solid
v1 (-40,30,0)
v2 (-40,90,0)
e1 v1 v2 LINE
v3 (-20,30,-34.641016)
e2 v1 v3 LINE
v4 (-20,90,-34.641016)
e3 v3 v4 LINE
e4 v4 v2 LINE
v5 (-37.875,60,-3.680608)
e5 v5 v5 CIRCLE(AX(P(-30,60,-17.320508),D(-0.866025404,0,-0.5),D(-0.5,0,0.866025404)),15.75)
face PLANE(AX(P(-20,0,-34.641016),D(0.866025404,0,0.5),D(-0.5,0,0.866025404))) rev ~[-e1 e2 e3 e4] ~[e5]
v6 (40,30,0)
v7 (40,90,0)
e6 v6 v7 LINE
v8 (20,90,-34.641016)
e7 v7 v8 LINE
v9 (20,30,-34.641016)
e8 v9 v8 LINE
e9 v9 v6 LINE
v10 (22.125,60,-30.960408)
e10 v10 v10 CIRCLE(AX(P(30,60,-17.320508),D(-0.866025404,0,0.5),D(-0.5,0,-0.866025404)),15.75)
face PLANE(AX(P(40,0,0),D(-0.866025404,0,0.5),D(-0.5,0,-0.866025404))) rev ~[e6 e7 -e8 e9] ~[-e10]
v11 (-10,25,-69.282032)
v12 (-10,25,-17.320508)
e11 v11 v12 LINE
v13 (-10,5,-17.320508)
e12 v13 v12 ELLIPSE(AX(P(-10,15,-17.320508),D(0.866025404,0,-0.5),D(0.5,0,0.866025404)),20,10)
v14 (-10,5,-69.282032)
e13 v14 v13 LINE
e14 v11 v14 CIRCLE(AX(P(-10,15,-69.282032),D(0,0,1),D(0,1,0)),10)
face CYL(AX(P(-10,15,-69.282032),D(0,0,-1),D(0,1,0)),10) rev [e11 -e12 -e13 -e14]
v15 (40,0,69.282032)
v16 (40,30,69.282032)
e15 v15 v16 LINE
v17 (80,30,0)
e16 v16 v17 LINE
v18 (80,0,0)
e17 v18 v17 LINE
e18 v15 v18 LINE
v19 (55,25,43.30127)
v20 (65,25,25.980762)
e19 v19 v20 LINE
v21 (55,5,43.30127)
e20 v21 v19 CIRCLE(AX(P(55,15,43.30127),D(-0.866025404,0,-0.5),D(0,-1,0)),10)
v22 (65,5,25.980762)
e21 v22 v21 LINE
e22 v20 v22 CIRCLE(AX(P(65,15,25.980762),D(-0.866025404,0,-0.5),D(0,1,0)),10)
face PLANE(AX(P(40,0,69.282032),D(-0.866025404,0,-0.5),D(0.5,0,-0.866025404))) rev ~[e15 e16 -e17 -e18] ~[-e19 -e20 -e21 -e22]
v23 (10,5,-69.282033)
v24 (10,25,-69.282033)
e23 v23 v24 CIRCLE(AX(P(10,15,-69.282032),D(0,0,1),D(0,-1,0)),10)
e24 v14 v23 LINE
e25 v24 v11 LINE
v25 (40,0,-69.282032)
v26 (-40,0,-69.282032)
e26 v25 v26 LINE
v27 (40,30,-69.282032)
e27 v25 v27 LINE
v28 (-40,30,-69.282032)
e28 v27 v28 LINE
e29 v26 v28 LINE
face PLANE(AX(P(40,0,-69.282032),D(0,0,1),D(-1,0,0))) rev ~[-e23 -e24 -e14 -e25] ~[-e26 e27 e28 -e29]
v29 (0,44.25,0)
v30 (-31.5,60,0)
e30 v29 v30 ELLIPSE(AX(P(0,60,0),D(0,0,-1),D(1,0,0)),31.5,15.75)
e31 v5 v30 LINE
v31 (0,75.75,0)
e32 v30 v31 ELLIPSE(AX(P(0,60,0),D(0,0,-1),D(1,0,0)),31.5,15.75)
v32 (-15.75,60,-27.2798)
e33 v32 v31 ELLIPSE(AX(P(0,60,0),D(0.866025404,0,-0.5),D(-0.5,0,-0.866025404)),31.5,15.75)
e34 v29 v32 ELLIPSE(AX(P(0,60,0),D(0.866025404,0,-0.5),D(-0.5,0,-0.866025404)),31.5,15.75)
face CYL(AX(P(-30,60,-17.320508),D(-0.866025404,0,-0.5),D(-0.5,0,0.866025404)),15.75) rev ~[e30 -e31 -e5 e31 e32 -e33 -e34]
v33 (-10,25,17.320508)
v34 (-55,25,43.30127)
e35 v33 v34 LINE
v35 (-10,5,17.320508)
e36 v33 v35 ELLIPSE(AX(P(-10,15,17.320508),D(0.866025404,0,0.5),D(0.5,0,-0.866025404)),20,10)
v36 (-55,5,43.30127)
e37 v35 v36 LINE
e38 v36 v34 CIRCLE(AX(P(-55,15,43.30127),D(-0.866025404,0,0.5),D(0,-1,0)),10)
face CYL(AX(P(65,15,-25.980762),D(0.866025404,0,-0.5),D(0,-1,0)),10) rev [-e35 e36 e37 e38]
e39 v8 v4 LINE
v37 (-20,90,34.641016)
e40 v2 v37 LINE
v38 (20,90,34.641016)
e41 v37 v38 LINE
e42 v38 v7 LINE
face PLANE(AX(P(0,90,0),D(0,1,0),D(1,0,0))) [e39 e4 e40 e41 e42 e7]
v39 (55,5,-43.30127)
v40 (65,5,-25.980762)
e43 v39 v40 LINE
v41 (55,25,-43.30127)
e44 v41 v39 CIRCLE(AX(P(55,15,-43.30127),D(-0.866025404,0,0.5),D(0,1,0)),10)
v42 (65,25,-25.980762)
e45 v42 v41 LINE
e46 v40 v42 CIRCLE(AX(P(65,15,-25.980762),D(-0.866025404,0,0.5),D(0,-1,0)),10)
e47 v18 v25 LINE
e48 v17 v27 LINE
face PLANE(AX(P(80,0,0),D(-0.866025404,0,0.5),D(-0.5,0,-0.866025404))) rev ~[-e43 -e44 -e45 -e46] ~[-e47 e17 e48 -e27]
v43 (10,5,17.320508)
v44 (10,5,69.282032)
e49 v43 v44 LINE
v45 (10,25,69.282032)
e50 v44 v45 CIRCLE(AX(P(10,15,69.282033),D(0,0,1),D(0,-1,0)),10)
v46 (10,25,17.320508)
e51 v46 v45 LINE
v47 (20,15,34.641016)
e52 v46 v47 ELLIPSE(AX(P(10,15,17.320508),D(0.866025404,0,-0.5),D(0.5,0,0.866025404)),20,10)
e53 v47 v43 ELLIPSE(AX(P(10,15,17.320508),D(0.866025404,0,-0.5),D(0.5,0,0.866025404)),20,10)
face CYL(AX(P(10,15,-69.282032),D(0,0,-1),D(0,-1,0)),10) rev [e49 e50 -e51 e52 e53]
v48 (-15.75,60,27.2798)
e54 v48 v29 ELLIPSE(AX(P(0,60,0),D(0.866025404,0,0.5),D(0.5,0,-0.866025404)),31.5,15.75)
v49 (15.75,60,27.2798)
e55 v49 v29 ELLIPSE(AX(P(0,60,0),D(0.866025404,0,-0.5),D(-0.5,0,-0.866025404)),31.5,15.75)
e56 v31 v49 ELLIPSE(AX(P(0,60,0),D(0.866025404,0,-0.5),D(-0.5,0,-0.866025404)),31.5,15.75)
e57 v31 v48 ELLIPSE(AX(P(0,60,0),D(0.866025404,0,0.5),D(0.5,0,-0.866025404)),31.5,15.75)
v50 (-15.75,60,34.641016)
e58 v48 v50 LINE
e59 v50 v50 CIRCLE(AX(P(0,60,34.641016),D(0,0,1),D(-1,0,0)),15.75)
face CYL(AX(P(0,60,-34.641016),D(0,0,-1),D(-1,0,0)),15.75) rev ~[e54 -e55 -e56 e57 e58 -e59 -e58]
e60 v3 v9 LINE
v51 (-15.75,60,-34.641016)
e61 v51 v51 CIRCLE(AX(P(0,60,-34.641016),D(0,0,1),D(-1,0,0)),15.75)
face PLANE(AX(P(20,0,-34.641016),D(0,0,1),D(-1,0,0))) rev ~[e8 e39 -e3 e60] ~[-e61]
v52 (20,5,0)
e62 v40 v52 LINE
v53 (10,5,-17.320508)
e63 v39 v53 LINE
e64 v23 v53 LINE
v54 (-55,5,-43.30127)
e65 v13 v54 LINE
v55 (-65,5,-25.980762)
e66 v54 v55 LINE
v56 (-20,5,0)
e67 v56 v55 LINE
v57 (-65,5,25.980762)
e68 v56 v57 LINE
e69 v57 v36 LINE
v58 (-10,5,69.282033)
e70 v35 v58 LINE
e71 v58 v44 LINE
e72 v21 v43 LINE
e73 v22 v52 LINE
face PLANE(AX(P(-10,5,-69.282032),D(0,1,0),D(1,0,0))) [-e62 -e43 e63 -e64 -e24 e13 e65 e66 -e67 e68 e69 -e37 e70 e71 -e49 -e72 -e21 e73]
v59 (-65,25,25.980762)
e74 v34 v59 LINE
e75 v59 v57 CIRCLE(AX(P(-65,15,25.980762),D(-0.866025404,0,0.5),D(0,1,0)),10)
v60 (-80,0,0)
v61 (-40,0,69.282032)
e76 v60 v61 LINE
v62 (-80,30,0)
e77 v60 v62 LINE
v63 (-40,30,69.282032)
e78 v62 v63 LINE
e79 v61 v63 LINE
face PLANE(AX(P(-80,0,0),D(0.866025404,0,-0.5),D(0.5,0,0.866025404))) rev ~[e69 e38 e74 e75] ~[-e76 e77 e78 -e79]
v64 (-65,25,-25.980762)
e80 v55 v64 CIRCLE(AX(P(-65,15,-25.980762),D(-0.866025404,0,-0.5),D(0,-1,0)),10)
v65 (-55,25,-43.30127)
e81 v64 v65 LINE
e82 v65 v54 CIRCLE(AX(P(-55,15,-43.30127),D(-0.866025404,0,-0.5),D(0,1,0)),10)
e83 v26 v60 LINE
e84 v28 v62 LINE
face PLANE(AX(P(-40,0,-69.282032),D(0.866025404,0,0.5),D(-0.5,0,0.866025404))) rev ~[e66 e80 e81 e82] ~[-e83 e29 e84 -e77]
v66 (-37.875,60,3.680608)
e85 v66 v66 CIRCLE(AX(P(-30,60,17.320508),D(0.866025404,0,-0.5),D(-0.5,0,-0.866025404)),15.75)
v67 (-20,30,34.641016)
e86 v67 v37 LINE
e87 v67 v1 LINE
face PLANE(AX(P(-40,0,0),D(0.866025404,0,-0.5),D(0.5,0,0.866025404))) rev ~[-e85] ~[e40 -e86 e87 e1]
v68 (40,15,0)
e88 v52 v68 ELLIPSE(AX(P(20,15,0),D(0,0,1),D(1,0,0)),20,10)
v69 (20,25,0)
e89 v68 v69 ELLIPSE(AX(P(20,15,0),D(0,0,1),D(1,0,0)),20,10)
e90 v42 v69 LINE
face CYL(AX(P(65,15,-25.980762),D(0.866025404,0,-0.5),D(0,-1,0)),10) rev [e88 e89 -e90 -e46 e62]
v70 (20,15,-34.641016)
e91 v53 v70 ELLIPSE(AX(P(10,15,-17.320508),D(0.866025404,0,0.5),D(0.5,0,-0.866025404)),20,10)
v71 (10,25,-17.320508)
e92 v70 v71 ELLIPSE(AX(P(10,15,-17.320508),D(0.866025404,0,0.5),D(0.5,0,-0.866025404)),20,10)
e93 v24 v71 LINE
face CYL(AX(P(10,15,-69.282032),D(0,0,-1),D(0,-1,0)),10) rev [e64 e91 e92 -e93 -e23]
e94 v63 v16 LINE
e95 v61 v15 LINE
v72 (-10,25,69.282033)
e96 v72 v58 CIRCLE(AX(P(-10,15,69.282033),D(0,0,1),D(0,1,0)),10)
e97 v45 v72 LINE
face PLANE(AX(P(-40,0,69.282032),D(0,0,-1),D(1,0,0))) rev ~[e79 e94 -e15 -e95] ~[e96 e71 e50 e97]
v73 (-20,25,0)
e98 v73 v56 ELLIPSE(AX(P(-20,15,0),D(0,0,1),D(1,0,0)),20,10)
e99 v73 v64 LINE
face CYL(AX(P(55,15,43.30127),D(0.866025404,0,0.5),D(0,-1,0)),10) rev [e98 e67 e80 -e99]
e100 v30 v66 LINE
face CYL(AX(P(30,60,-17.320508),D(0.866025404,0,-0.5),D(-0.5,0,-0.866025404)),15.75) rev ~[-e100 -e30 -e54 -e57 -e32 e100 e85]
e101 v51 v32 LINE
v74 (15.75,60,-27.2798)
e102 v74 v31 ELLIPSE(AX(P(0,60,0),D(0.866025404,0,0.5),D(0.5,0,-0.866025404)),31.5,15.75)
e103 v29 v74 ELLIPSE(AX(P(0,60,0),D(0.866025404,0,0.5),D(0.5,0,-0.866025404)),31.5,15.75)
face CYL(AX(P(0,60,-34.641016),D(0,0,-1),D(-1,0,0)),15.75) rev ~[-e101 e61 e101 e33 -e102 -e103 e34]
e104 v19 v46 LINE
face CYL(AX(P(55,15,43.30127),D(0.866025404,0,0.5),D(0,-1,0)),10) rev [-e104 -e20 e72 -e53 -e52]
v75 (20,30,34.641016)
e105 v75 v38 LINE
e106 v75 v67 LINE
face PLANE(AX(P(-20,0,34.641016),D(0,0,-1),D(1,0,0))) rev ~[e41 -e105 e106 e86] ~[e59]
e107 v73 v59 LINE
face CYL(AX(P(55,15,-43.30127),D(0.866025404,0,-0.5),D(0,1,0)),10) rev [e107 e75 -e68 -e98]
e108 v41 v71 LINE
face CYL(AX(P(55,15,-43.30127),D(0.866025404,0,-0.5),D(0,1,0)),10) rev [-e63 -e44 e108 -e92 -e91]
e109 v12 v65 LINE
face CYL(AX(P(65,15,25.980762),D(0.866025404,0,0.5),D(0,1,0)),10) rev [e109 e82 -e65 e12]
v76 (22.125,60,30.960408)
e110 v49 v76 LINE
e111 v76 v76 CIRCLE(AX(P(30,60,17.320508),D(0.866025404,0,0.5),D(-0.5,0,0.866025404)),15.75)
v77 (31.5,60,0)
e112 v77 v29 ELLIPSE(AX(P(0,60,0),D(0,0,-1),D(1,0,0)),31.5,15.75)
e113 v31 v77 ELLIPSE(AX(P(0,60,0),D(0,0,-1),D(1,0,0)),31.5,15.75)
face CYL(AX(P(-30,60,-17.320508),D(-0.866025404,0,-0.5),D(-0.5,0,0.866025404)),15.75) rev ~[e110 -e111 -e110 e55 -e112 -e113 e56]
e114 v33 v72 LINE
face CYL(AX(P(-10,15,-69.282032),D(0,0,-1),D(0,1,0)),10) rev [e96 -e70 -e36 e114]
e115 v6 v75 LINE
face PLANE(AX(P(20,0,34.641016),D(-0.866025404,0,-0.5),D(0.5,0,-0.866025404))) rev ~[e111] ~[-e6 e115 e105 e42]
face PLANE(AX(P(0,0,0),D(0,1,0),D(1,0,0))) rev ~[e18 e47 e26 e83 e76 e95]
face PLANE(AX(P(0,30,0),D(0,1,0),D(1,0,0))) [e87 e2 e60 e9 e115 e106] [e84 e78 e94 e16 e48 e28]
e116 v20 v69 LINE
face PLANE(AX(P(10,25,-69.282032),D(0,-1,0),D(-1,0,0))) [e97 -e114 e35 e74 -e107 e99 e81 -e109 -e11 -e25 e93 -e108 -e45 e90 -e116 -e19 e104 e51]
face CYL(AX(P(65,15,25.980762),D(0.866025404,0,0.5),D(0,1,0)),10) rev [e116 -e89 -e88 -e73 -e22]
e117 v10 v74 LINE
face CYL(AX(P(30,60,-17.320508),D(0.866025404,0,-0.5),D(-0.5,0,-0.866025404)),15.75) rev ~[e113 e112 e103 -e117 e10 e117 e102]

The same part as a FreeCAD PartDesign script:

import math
import FreeCAD as App
import Part
import Sketcher
from FreeCAD import Vector
Q = App.Units.Quantity


def add_polygon(sketch, points):
    """Adds a closed chain of lines whose ends are joined by coincident constraints."""
    first, n = sketch.GeometryCount, len(points)
    for a, b in zip(points, points[1:] + points[:1]):
        sketch.addGeometry(Part.LineSegment(App.Vector(*a, 0), App.Vector(*b, 0)), False)
    for i in range(n):
        sketch.addConstraint(Sketcher.Constraint("Coincident", first + i, 2, first + (i + 1) % n, 1))

doc = App.newDocument("Part")
body = doc.addObject("PartDesign::Body", "Body")

sketch1 = body.newObject("Sketcher::SketchObject", "Sketch")
sketch1.AttachmentSupport = (doc.getObject("XZ_Plane"), [""])
sketch1.MapMode = "FlatFace"
add_polygon(sketch1, [(40, -69), (-40, -69), (-80, 0), (-40, 69), (40, 69), (80, 0)])
sketch1.addConstraint(Sketcher.Constraint("Horizontal", 0))
sketch1.addConstraint(Sketcher.Constraint("Horizontal", 3))
sketch1.addConstraint(Sketcher.Constraint("Symmetric", 0, 2, 3, 2, -1, 1))
sketch1.addConstraint(Sketcher.Constraint("Symmetric", 1, 2, 4, 2, -1, 1))
sketch1.addConstraint(Sketcher.Constraint("PointOnObject", 1, 2, -1))
sketch1.addConstraint(Sketcher.Constraint("Parallel", 2, 5))
sketch1.addConstraint(Sketcher.Constraint("Vertical", 0, 2, 2, 2))
sketch1.addConstraint(Sketcher.Constraint("DistanceX", 0, 2, 0, 1, 80.0))
sketch1.addConstraint(Sketcher.Constraint("Angle", 1, Q("120 deg")))
sketch1.addConstraint(Sketcher.Constraint("Distance", 1, 80.0))
pad1 = body.newObject("PartDesign::Pad", "Pad")
pad1.Profile = sketch1
pad1.Length = 30
pad1.Reversed = True

sketch2 = body.newObject("Sketcher::SketchObject", "Sketch001")
sketch2.AttachmentSupport = (doc.getObject("XZ_Plane"), [""])
sketch2.MapMode = "FlatFace"
add_polygon(sketch2, [(20, -35), (-20, -35), (-40, 0), (-20, 35), (20, 35), (40, 0)])
sketch2.addConstraint(Sketcher.Constraint("Horizontal", 0))
sketch2.addConstraint(Sketcher.Constraint("Horizontal", 3))
sketch2.addConstraint(Sketcher.Constraint("Symmetric", 0, 2, 3, 2, -1, 1))
sketch2.addConstraint(Sketcher.Constraint("Symmetric", 1, 2, 4, 2, -1, 1))
sketch2.addConstraint(Sketcher.Constraint("PointOnObject", 1, 2, -1))
sketch2.addConstraint(Sketcher.Constraint("Parallel", 2, 5))
sketch2.addConstraint(Sketcher.Constraint("Vertical", 0, 2, 2, 2))
sketch2.addConstraint(Sketcher.Constraint("DistanceX", 0, 2, 0, 1, 40.0))
sketch2.addConstraint(Sketcher.Constraint("Angle", 1, Q("120 deg")))
sketch2.addConstraint(Sketcher.Constraint("Distance", 1, 40.0))
pad2 = body.newObject("PartDesign::Pad", "Pad001")
pad2.Profile = sketch2
pad2.Length = 90
pad2.Reversed = True

sketch3 = body.newObject("Sketcher::SketchObject", "Sketch002")
sketch3.Placement = App.Placement(Vector(60, 0, 34.641016), App.Rotation(Vector(0.5, 0, -0.866025404), Vector(0, 1, 0), Vector(0.866025404, 0, 0.5), "ZXY"))
sketch3.addGeometry(Part.LineSegment(Vector(10, 25, 0), Vector(-10, 25, 0)), False)
sketch3.addGeometry(Part.ArcOfCircle(Part.Circle(Vector(-10, 15, 0), Vector(0, 0, 1), 10), math.radians(90), math.radians(270)), False)
sketch3.addGeometry(Part.LineSegment(Vector(-10, 5, 0), Vector(10, 5, 0)), False)
sketch3.addGeometry(Part.ArcOfCircle(Part.Circle(Vector(10, 15, 0), Vector(0, 0, 1), 10), math.radians(-90), math.radians(90)), False)
sketch3.addConstraint(Sketcher.Constraint("Tangent", 0, 2, 1, 1))
sketch3.addConstraint(Sketcher.Constraint("Tangent", 1, 2, 2, 1))
sketch3.addConstraint(Sketcher.Constraint("Tangent", 2, 2, 3, 1))
sketch3.addConstraint(Sketcher.Constraint("Tangent", 3, 2, 0, 1))
sketch3.addConstraint(Sketcher.Constraint("Horizontal", 0))
sketch3.addConstraint(Sketcher.Constraint("Horizontal", 2))
sketch3.addConstraint(Sketcher.Constraint("Radius", 1, 10.0))
sketch3.addConstraint(Sketcher.Constraint("DistanceX", 0, 2, 0, 1, 20.0))
sketch3.addConstraint(Sketcher.Constraint("DistanceX", 1, 3, -1, 1, 10.0))
sketch3.addConstraint(Sketcher.Constraint("DistanceY", -1, 1, 1, 3, 15.0))
pocket1 = body.newObject("PartDesign::Pocket", "Pocket")
pocket1.Profile = sketch3
pocket1.Length = 138.564065
doc.recompute()

polarpattern = body.newObject("PartDesign::PolarPattern", "PolarPattern")
polarpattern.Originals = [pocket1]
polarpattern.Axis = (doc.getObject("Y_Axis"), [""])
polarpattern.Angle = 360
polarpattern.Occurrences = 6
body.Tip = polarpattern

sketch4 = body.newObject("Sketcher::SketchObject", "Sketch003")
sketch4.Placement = App.Placement(Vector(30, 0, -17.320508), App.Rotation(Vector(-0.5, 0, -0.866025404), Vector(0, 1, 0), Vector(0.866025404, 0, -0.5), "ZXY"))
sketch4.addGeometry(Part.Circle(Vector(0, 60, 0), Vector(0, 0, 1), 16), False)
sketch4.addConstraint(Sketcher.Constraint("PointOnObject", 0, 3, -2))
sketch4.addConstraint(Sketcher.Constraint("Diameter", 0, 31.5))
sketch4.addConstraint(Sketcher.Constraint("DistanceY", -1, 1, 0, 3, 60.0))
pocket2 = body.newObject("PartDesign::Pocket", "Pocket001")
pocket2.Profile = sketch4
pocket2.Length = 103.923048
doc.recompute()

polarpattern2 = body.newObject("PartDesign::PolarPattern", "PolarPattern001")
polarpattern2.Originals = [pocket2]
polarpattern2.Axis = (doc.getObject("Y_Axis"), [""])
polarpattern2.Angle = 360
polarpattern2.Occurrences = 6
body.Tip = polarpattern2

doc.recompute()
